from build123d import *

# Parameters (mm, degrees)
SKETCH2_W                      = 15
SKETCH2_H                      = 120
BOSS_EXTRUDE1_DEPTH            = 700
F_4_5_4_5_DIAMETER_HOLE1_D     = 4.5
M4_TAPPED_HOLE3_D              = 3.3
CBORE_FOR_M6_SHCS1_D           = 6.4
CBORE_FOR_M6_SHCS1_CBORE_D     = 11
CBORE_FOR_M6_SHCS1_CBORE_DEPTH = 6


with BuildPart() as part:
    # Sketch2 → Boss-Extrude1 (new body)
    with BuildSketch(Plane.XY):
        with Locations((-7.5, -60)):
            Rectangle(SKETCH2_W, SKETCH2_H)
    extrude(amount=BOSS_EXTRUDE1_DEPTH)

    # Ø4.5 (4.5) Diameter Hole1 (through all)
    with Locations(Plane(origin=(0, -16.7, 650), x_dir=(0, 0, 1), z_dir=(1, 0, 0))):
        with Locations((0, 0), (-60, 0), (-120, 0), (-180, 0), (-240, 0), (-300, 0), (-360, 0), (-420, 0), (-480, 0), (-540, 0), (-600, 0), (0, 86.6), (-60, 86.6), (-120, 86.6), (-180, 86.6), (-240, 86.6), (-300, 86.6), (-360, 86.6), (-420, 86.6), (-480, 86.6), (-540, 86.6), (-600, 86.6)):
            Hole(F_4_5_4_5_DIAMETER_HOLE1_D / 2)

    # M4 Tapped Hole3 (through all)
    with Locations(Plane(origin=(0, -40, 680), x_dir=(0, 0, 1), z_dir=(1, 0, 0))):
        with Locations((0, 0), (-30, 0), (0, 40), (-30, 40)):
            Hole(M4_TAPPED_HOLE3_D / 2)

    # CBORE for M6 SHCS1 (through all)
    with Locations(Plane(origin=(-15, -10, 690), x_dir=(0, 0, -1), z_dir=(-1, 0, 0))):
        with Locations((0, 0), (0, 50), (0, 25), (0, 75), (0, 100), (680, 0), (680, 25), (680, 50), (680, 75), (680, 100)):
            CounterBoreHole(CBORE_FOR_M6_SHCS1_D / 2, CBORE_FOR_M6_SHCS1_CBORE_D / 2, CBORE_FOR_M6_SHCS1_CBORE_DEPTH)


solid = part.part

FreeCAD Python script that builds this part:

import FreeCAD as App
import Part
import Sketcher

V = App.Vector
Q = App.Units.Quantity

doc = App.newDocument("Part")
params = doc.addObject("Spreadsheet::Sheet", "Params")
for row, (alias, value) in enumerate([
    ("sketch1_width", "15 mm"),
    ("sketch1_height", "120 mm"),
    ("pad1_length", "700 mm"),
    ("sketch2_diameter", "4.5 mm"),
    ("hole_diameter", "4.5 mm"),
    ("sketch3_diameter", "3.3 mm"),
    ("hole2_diameter", "3.3 mm"),
    ("sketch4_diameter", "6.4 mm"),
    ("hole3_diameter", "6.4 mm"),
    ("hole3_cbore_diameter", "11 mm"),
    ("hole3_cbore_depth", "6 mm"),
], start=1):
    params.set(f"A{row}", alias)
    params.set(f"B{row}", "=" + value)
    params.setAlias(f"B{row}", alias)

body = doc.addObject("PartDesign::Body", "Body")

# Sketch on XY plane
sketch1 = body.newObject("Sketcher::SketchObject", "Sketch")
sketch1.AttachmentSupport = (doc.getObject("XY_Plane"), [""])
sketch1.MapMode = "FlatFace"
sketch1.addGeometry([
    Part.LineSegment(V(-15, 0, 0), V(-15, -120, 0)),
    Part.LineSegment(V(-15, -120, 0), V(0, -120, 0)),
    Part.LineSegment(V(0, -120, 0), V(0, 0, 0)),
    Part.LineSegment(V(0, 0, 0), V(-15, 0, 0)),
], False)
sketch1.addConstraint([
    Sketcher.Constraint("Coincident", 0, 2, 1, 1),
    Sketcher.Constraint("Coincident", 1, 2, 2, 1),
    Sketcher.Constraint("Coincident", 2, 2, 3, 1),
    Sketcher.Constraint("Coincident", 3, 2, 0, 1),
    Sketcher.Constraint("Vertical", 0),
    Sketcher.Constraint("Horizontal", 1),
    Sketcher.Constraint("Vertical", 2),
    Sketcher.Constraint("Horizontal", 3),
    Sketcher.Constraint("Coincident", 2, 2, -1, 1),
    Sketcher.Constraint("DistanceX", 1, 1, 1, 2, Q("15 mm")),
    Sketcher.Constraint("DistanceY", 0, 2, 0, 1, Q("120 mm")),
])
sketch1.setExpression("Constraints[9]", "Params.sketch1_width")
sketch1.setExpression("Constraints[10]", "Params.sketch1_height")
pad1 = body.newObject("PartDesign::Pad", "Pad")
pad1.Profile = sketch1
pad1.setExpression("Length", "Params.pad1_length")

# Sketch on YZ plane
sketch2 = body.newObject("Sketcher::SketchObject", "Sketch001")
sketch2.AttachmentSupport = (doc.getObject("YZ_Plane"), [""])
sketch2.MapMode = "FlatFace"
sketch2.addGeometry([
    Part.Circle(V(-16.7, 650, 0), V(0, 0, 1), 2.2),  # 0
    Part.Circle(V(-16.7, 590, 0), V(0, 0, 1), 2.2),  # 1
    Part.Circle(V(-16.7, 530, 0), V(0, 0, 1), 2.2),  # 2
    Part.Circle(V(-16.7, 470, 0), V(0, 0, 1), 2.2),  # 3
    Part.Circle(V(-16.7, 410, 0), V(0, 0, 1), 2.2),  # 4
    Part.Circle(V(-16.7, 350, 0), V(0, 0, 1), 2.2),  # 5
    Part.Circle(V(-16.7, 290, 0), V(0, 0, 1), 2.2),  # 6
    Part.Circle(V(-16.7, 230, 0), V(0, 0, 1), 2.2),  # 7
    Part.Circle(V(-16.7, 170, 0), V(0, 0, 1), 2.2),  # 8
    Part.Circle(V(-16.7, 110, 0), V(0, 0, 1), 2.2),  # 9
    Part.Circle(V(-16.7, 50, 0), V(0, 0, 1), 2.2),  # 10
    Part.Circle(V(-103.3, 650, 0), V(0, 0, 1), 2.2),  # 11
    Part.Circle(V(-103.3, 590, 0), V(0, 0, 1), 2.2),  # 12
    Part.Circle(V(-103.3, 530, 0), V(0, 0, 1), 2.2),  # 13
    Part.Circle(V(-103.3, 470, 0), V(0, 0, 1), 2.2),  # 14
    Part.Circle(V(-103.3, 410, 0), V(0, 0, 1), 2.2),  # 15
    Part.Circle(V(-103.3, 350, 0), V(0, 0, 1), 2.2),  # 16
    Part.Circle(V(-103.3, 290, 0), V(0, 0, 1), 2.2),  # 17
    Part.Circle(V(-103.3, 230, 0), V(0, 0, 1), 2.2),  # 18
    Part.Circle(V(-103.3, 170, 0), V(0, 0, 1), 2.2),  # 19
    Part.Circle(V(-103.3, 110, 0), V(0, 0, 1), 2.2),  # 20
    Part.Circle(V(-103.3, 50, 0), V(0, 0, 1), 2.2),  # 21
], False)
sketch2.addConstraint([
    Sketcher.Constraint("Equal", 0, 1),
    Sketcher.Constraint("Equal", 1, 2),
    Sketcher.Constraint("Equal", 2, 3),
    Sketcher.Constraint("Equal", 3, 4),
    Sketcher.Constraint("Equal", 4, 5),
    Sketcher.Constraint("Equal", 5, 6),
    Sketcher.Constraint("Equal", 6, 7),
    Sketcher.Constraint("Equal", 7, 8),
    Sketcher.Constraint("Equal", 8, 9),
    Sketcher.Constraint("Equal", 9, 10),
    Sketcher.Constraint("Equal", 10, 11),
    Sketcher.Constraint("Equal", 11, 12),
    Sketcher.Constraint("Equal", 12, 13),
    Sketcher.Constraint("Equal", 13, 14),
    Sketcher.Constraint("Equal", 14, 15),
    Sketcher.Constraint("Equal", 15, 16),
    Sketcher.Constraint("Equal", 16, 17),
    Sketcher.Constraint("Equal", 17, 18),
    Sketcher.Constraint("Equal", 18, 19),
    Sketcher.Constraint("Equal", 19, 20),
    Sketcher.Constraint("Equal", 20, 21),
    Sketcher.Constraint("Horizontal", 0, 3, 11, 3),
    Sketcher.Constraint("Horizontal", 1, 3, 12, 3),
    Sketcher.Constraint("Horizontal", 2, 3, 13, 3),
    Sketcher.Constraint("Horizontal", 3, 3, 14, 3),
    Sketcher.Constraint("Horizontal", 4, 3, 15, 3),
    Sketcher.Constraint("Horizontal", 5, 3, 16, 3),
    Sketcher.Constraint("Horizontal", 6, 3, 17, 3),
    Sketcher.Constraint("Horizontal", 7, 3, 18, 3),
    Sketcher.Constraint("Horizontal", 8, 3, 19, 3),
    Sketcher.Constraint("Horizontal", 9, 3, 20, 3),
    Sketcher.Constraint("Horizontal", 10, 3, 21, 3),
    Sketcher.Constraint("Vertical", 0, 3, 1, 3),
    Sketcher.Constraint("Vertical", 1, 3, 2, 3),
    Sketcher.Constraint("Vertical", 2, 3, 3, 3),
    Sketcher.Constraint("Vertical", 3, 3, 4, 3),
    Sketcher.Constraint("Vertical", 4, 3, 5, 3),
    Sketcher.Constraint("Vertical", 5, 3, 6, 3),
    Sketcher.Constraint("Vertical", 6, 3, 7, 3),
    Sketcher.Constraint("Vertical", 7, 3, 8, 3),
    Sketcher.Constraint("Vertical", 8, 3, 9, 3),
    Sketcher.Constraint("Vertical", 9, 3, 10, 3),
    Sketcher.Constraint("Vertical", 11, 3, 12, 3),
    Sketcher.Constraint("Vertical", 12, 3, 13, 3),
    Sketcher.Constraint("Vertical", 13, 3, 14, 3),
    Sketcher.Constraint("Vertical", 14, 3, 15, 3),
    Sketcher.Constraint("Vertical", 15, 3, 16, 3),
    Sketcher.Constraint("Vertical", 16, 3, 17, 3),
    Sketcher.Constraint("Vertical", 17, 3, 18, 3),
    Sketcher.Constraint("Vertical", 18, 3, 19, 3),
    Sketcher.Constraint("Vertical", 19, 3, 20, 3),
    Sketcher.Constraint("Vertical", 20, 3, 21, 3),
    Sketcher.Constraint("Diameter", 0, Q("4.5 mm")),
    Sketcher.Constraint("DistanceY", -1, 1, 0, 3, Q("650 mm")),
    Sketcher.Constraint("DistanceY", -1, 1, 1, 3, Q("590 mm")),
    Sketcher.Constraint("DistanceY", -1, 1, 2, 3, Q("530 mm")),
    Sketcher.Constraint("DistanceY", -1, 1, 3, 3, Q("470 mm")),
    Sketcher.Constraint("DistanceY", -1, 1, 4, 3, Q("410 mm")),
    Sketcher.Constraint("DistanceY", -1, 1, 5, 3, Q("350 mm")),
    Sketcher.Constraint("DistanceY", -1, 1, 6, 3, Q("290 mm")),
    Sketcher.Constraint("DistanceY", -1, 1, 7, 3, Q("230 mm")),
    Sketcher.Constraint("DistanceY", -1, 1, 8, 3, Q("170 mm")),
    Sketcher.Constraint("DistanceY", -1, 1, 9, 3, Q("110 mm")),
    Sketcher.Constraint("DistanceY", -1, 1, 10, 3, Q("50 mm")),
    Sketcher.Constraint("DistanceX", 0, 3, -1, 1, Q("16.7 mm")),
    Sketcher.Constraint("DistanceX", 11, 3, -1, 1, Q("103.3 mm")),
])
sketch2.setExpression("Constraints[52]", "Params.sketch2_diameter")
doc.recompute()
hole = body.newObject("PartDesign::Hole", "Hole")
hole.Profile = sketch2
hole.ThreadType = "None"
hole.setExpression("Diameter", "Params.hole_diameter")
hole.DepthType = "ThroughAll"

# Sketch on YZ plane
sketch3 = body.newObject("Sketcher::SketchObject", "Sketch002")
sketch3.AttachmentSupport = (doc.getObject("YZ_Plane"), [""])
sketch3.MapMode = "FlatFace"
sketch3.addGeometry([
    Part.Circle(V(-40, 680, 0), V(0, 0, 1), 1.6),
    Part.Circle(V(-40, 650, 0), V(0, 0, 1), 1.6),
    Part.Circle(V(-80, 680, 0), V(0, 0, 1), 1.6),
    Part.Circle(V(-80, 650, 0), V(0, 0, 1), 1.6),
], False)
sketch3.addConstraint([
    Sketcher.Constraint("Equal", 0, 1),
    Sketcher.Constraint("Equal", 1, 2),
    Sketcher.Constraint("Equal", 2, 3),
    Sketcher.Constraint("Horizontal", 0, 3, 2, 3),
    Sketcher.Constraint("Horizontal", 1, 3, 3, 3),
    Sketcher.Constraint("Vertical", 0, 3, 1, 3),
    Sketcher.Constraint("Vertical", 2, 3, 3, 3),
    Sketcher.Constraint("Diameter", 0, Q("3.3 mm")),
    Sketcher.Constraint("DistanceX", 0, 3, -1, 1, Q("40 mm")),
    Sketcher.Constraint("DistanceY", -1, 1, 0, 3, Q("680 mm")),
    Sketcher.Constraint("DistanceY", -1, 1, 1, 3, Q("650 mm")),
    Sketcher.Constraint("DistanceX", 2, 3, -1, 1, Q("80 mm")),
])
sketch3.setExpression("Constraints[7]", "Params.sketch3_diameter")
doc.recompute()
hole2 = body.newObject("PartDesign::Hole", "Hole001")
hole2.Profile = sketch3
hole2.ThreadType = "None"
hole2.setExpression("Diameter", "Params.hole2_diameter")
hole2.DepthType = "ThroughAll"

# Sketch on YZ plane
sketch4 = body.newObject("Sketcher::SketchObject", "Sketch003")
sketch4.AttachmentSupport = (doc.getObject("YZ_Plane"), [""])
sketch4.MapMode = "FlatFace"
sketch4.AttachmentOffset = App.Placement(V(0, 0, -15), App.Rotation())
sketch4.addGeometry([
    Part.Circle(V(-10, 690, 0), V(0, 0, 1), 3.2),  # 0
    Part.Circle(V(-60, 690, 0), V(0, 0, 1), 3.2),  # 1
    Part.Circle(V(-35, 690, 0), V(0, 0, 1), 3.2),  # 2
    Part.Circle(V(-85, 690, 0), V(0, 0, 1), 3.2),  # 3
    Part.Circle(V(-110, 690, 0), V(0, 0, 1), 3.2),  # 4
    Part.Circle(V(-10, 10, 0), V(0, 0, 1), 3.2),  # 5
    Part.Circle(V(-35, 10, 0), V(0, 0, 1), 3.2),  # 6
    Part.Circle(V(-60, 10, 0), V(0, 0, 1), 3.2),  # 7
    Part.Circle(V(-85, 10, 0), V(0, 0, 1), 3.2),  # 8
    Part.Circle(V(-110, 10, 0), V(0, 0, 1), 3.2),  # 9
], False)
sketch4.addConstraint([
    Sketcher.Constraint("Equal", 0, 1),
    Sketcher.Constraint("Equal", 1, 2),
    Sketcher.Constraint("Equal", 2, 3),
    Sketcher.Constraint("Equal", 3, 4),
    Sketcher.Constraint("Equal", 4, 5),
    Sketcher.Constraint("Equal", 5, 6),
    Sketcher.Constraint("Equal", 6, 7),
    Sketcher.Constraint("Equal", 7, 8),
    Sketcher.Constraint("Equal", 8, 9),
    Sketcher.Constraint("Horizontal", 0, 3, 1, 3),
    Sketcher.Constraint("Horizontal", 1, 3, 2, 3),
    Sketcher.Constraint("Horizontal", 2, 3, 3, 3),
    Sketcher.Constraint("Horizontal", 3, 3, 4, 3),
    Sketcher.Constraint("Horizontal", 5, 3, 6, 3),
    Sketcher.Constraint("Horizontal", 6, 3, 7, 3),
    Sketcher.Constraint("Horizontal", 7, 3, 8, 3),
    Sketcher.Constraint("Horizontal", 8, 3, 9, 3),
    Sketcher.Constraint("Vertical", 0, 3, 5, 3),
    Sketcher.Constraint("Vertical", 2, 3, 6, 3),
    Sketcher.Constraint("Vertical", 1, 3, 7, 3),
    Sketcher.Constraint("Vertical", 3, 3, 8, 3),
    Sketcher.Constraint("Vertical", 4, 3, 9, 3),
    Sketcher.Constraint("Diameter", 0, Q("6.4 mm")),
    Sketcher.Constraint("DistanceX", 0, 3, -1, 1, Q("10 mm")),
    Sketcher.Constraint("DistanceY", -1, 1, 0, 3, Q("690 mm")),
    Sketcher.Constraint("DistanceX", 1, 3, -1, 1, Q("60 mm")),
    Sketcher.Constraint("DistanceX", 2, 3, -1, 1, Q("35 mm")),
    Sketcher.Constraint("DistanceX", 3, 3, -1, 1, Q("85 mm")),
    Sketcher.Constraint("DistanceX", 4, 3, -1, 1, Q("110 mm")),
    Sketcher.Constraint("DistanceY", -1, 1, 5, 3, Q("10 mm")),
])
sketch4.setExpression("Constraints[22]", "Params.sketch4_diameter")
doc.recompute()
hole3 = body.newObject("PartDesign::Hole", "Hole002")
hole3.Profile = sketch4
hole3.ThreadType = "None"
hole3.setExpression("Diameter", "Params.hole3_diameter")
hole3.DepthType = "ThroughAll"
hole3.HoleCutType = "Counterbore"
hole3.setExpression("HoleCutDiameter", "Params.hole3_cbore_diameter")
hole3.setExpression("HoleCutDepth", "Params.hole3_cbore_depth")
hole3.Reversed = True

doc.recompute()
